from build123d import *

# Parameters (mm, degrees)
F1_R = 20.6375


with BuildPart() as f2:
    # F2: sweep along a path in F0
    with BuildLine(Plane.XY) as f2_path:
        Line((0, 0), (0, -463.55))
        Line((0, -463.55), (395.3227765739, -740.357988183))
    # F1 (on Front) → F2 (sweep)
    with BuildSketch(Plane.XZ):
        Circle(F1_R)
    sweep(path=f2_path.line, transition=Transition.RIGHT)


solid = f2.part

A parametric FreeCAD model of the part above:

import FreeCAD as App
import Part
import Sketcher
Q = App.Units.Quantity

doc = App.newDocument("Part")
params = doc.addObject("Spreadsheet::Sheet", "Params")
for row, (alias, value) in enumerate([
    ("sketch1_diameter", "1.625 in"),
    ("sketch2_length", "19 in"),
    ("sketch2_height", "18.25 in"),
], start=1):
    params.set(f"A{row}", alias)
    params.set(f"B{row}", "=" + value)
    params.setAlias(f"B{row}", alias)

body = doc.addObject("PartDesign::Body", "Body")

# Sketch on XZ plane
sketch1 = body.newObject("Sketcher::SketchObject", "Sketch")
sketch1.AttachmentSupport = (doc.getObject("XZ_Plane"), [""])
sketch1.MapMode = "FlatFace"
sketch1.addGeometry(Part.Circle(App.Vector(0, 0, 0), App.Vector(0, 0, 1), 21), False)
sketch1.addConstraint([
    Sketcher.Constraint("Coincident", 0, 3, -1, 1),
    Sketcher.Constraint("Diameter", 0, Q("1.625 in")),
])
sketch1.setExpression("Constraints[1]", "Params.sketch1_diameter")

# Sketch on XY plane
sketch2 = body.newObject("Sketcher::SketchObject", "Sketch001")
sketch2.AttachmentSupport = (doc.getObject("XY_Plane"), [""])
sketch2.MapMode = "FlatFace"
sketch2.addGeometry([
    Part.LineSegment(App.Vector(0, 0, 0), App.Vector(0, -464, 0)),
    Part.LineSegment(App.Vector(0, -464, 0), App.Vector(395, -740, 0)),
], False)
sketch2.addConstraint([
    Sketcher.Constraint("Coincident", 0, 2, 1, 1),
    Sketcher.Constraint("Vertical", 0),
    Sketcher.Constraint("Coincident", 0, 1, -1, 1),
    Sketcher.Constraint("Distance", 1, Q("19 in")),
    Sketcher.Constraint("Angle", 1, Q("-35 deg")),
    Sketcher.Constraint("DistanceY", 0, 2, 0, 1, Q("18.25 in")),
])
sketch2.setExpression("Constraints[3]", "Params.sketch2_length")
sketch2.setExpression("Constraints[5]", "Params.sketch2_height")
doc.recompute()

additivepipe = body.newObject("PartDesign::AdditivePipe", "AdditivePipe")
additivepipe.Profile = sketch1
additivepipe.Spine = (sketch2, ["Edge1", "Edge2"])
additivepipe.Transition = "Right corner"

doc.recompute()
